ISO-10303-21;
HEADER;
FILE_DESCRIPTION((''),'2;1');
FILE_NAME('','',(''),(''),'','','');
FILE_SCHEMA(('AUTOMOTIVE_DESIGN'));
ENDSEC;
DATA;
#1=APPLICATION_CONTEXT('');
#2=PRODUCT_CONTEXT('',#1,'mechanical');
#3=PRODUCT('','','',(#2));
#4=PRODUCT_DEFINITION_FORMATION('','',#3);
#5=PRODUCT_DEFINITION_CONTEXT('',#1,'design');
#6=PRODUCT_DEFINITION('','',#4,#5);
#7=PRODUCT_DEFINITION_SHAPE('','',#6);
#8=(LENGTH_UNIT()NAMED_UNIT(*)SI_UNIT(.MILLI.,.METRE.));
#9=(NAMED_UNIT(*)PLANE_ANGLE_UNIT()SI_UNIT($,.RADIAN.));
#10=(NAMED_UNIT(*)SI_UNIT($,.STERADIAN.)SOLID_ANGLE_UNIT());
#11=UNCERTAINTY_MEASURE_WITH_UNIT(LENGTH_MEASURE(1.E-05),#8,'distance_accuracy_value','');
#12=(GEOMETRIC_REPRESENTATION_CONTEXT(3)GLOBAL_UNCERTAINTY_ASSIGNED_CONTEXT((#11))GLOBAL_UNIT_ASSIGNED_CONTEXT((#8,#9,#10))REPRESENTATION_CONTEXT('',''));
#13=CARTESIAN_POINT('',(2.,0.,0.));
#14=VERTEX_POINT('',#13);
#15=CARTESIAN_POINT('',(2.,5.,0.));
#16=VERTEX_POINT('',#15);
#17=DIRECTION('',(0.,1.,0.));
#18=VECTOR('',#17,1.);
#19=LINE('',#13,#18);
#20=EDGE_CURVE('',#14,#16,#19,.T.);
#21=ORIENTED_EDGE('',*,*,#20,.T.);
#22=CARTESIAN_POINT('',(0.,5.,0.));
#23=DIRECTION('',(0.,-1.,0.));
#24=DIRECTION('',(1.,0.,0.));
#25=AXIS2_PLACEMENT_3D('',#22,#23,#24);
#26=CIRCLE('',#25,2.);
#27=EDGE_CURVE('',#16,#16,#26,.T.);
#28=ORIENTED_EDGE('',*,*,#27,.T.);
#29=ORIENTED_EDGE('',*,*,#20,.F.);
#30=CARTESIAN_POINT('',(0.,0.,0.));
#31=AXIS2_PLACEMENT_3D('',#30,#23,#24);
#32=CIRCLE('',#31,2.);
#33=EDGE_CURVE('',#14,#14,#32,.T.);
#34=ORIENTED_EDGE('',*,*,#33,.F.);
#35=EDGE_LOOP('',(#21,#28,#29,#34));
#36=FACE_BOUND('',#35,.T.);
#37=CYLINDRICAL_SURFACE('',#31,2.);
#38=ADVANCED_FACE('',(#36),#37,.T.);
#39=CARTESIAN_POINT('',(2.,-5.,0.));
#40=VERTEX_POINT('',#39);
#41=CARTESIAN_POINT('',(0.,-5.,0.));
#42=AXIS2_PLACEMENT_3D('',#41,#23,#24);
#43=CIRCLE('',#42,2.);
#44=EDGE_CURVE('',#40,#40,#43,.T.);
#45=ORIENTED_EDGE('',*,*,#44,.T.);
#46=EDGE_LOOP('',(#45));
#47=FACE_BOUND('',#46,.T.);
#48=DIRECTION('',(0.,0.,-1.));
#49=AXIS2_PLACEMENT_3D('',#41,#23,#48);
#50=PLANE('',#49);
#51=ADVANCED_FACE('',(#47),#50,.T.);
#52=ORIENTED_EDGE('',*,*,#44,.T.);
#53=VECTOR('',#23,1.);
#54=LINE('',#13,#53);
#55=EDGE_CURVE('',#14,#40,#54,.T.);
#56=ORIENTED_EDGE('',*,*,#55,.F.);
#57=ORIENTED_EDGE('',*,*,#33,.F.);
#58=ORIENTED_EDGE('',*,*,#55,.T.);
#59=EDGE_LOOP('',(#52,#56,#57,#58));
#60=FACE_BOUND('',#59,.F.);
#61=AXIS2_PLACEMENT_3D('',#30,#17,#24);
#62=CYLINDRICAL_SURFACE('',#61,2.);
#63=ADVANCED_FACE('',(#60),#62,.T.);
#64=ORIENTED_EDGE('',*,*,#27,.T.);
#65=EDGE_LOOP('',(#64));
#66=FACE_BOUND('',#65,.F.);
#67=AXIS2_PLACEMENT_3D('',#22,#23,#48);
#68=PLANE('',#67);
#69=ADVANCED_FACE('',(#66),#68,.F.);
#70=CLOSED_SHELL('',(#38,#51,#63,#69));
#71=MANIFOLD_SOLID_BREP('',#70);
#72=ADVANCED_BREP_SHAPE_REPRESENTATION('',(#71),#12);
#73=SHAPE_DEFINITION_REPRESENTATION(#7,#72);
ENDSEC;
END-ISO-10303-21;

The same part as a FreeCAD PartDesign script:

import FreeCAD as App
import Part
import Sketcher

V = App.Vector

doc = App.newDocument("Part")
params = doc.addObject("Spreadsheet::Sheet", "Params")
for row, (alias, value) in enumerate([
    ("sketch1_diameter", "4 mm"),
    ("pad1_length", "10 mm"),
], start=1):
    params.set(f"A{row}", alias)
    params.set(f"B{row}", "=" + value)
    params.setAlias(f"B{row}", alias)

body = doc.addObject("PartDesign::Body", "Body")

# Sketch on XZ plane
sketch1 = doc.addObject("Sketcher::SketchObject", "Sketch")
body.addObject(sketch1)
sketch1.AttachmentSupport = (doc.XZ_Plane, [""])
sketch1.MapMode = "FlatFace"
sketch1.addGeometry(Part.Circle(V(0, 0, 0), V(0, 0, 1), 2), False)
sketch1.addConstraint(Sketcher.Constraint("Coincident", 0, 3, -1, 1))
sketch1.addConstraint(Sketcher.Constraint("Diameter", 0, 4.0))
sketch1.setExpression("Constraints[1]", "Params.sketch1_diameter")
pad1 = doc.addObject("PartDesign::Pad", "Pad")
body.addObject(pad1)
pad1.Profile = sketch1
pad1.setExpression("Length", "Params.pad1_length")
pad1.Midplane = True

doc.recompute()
